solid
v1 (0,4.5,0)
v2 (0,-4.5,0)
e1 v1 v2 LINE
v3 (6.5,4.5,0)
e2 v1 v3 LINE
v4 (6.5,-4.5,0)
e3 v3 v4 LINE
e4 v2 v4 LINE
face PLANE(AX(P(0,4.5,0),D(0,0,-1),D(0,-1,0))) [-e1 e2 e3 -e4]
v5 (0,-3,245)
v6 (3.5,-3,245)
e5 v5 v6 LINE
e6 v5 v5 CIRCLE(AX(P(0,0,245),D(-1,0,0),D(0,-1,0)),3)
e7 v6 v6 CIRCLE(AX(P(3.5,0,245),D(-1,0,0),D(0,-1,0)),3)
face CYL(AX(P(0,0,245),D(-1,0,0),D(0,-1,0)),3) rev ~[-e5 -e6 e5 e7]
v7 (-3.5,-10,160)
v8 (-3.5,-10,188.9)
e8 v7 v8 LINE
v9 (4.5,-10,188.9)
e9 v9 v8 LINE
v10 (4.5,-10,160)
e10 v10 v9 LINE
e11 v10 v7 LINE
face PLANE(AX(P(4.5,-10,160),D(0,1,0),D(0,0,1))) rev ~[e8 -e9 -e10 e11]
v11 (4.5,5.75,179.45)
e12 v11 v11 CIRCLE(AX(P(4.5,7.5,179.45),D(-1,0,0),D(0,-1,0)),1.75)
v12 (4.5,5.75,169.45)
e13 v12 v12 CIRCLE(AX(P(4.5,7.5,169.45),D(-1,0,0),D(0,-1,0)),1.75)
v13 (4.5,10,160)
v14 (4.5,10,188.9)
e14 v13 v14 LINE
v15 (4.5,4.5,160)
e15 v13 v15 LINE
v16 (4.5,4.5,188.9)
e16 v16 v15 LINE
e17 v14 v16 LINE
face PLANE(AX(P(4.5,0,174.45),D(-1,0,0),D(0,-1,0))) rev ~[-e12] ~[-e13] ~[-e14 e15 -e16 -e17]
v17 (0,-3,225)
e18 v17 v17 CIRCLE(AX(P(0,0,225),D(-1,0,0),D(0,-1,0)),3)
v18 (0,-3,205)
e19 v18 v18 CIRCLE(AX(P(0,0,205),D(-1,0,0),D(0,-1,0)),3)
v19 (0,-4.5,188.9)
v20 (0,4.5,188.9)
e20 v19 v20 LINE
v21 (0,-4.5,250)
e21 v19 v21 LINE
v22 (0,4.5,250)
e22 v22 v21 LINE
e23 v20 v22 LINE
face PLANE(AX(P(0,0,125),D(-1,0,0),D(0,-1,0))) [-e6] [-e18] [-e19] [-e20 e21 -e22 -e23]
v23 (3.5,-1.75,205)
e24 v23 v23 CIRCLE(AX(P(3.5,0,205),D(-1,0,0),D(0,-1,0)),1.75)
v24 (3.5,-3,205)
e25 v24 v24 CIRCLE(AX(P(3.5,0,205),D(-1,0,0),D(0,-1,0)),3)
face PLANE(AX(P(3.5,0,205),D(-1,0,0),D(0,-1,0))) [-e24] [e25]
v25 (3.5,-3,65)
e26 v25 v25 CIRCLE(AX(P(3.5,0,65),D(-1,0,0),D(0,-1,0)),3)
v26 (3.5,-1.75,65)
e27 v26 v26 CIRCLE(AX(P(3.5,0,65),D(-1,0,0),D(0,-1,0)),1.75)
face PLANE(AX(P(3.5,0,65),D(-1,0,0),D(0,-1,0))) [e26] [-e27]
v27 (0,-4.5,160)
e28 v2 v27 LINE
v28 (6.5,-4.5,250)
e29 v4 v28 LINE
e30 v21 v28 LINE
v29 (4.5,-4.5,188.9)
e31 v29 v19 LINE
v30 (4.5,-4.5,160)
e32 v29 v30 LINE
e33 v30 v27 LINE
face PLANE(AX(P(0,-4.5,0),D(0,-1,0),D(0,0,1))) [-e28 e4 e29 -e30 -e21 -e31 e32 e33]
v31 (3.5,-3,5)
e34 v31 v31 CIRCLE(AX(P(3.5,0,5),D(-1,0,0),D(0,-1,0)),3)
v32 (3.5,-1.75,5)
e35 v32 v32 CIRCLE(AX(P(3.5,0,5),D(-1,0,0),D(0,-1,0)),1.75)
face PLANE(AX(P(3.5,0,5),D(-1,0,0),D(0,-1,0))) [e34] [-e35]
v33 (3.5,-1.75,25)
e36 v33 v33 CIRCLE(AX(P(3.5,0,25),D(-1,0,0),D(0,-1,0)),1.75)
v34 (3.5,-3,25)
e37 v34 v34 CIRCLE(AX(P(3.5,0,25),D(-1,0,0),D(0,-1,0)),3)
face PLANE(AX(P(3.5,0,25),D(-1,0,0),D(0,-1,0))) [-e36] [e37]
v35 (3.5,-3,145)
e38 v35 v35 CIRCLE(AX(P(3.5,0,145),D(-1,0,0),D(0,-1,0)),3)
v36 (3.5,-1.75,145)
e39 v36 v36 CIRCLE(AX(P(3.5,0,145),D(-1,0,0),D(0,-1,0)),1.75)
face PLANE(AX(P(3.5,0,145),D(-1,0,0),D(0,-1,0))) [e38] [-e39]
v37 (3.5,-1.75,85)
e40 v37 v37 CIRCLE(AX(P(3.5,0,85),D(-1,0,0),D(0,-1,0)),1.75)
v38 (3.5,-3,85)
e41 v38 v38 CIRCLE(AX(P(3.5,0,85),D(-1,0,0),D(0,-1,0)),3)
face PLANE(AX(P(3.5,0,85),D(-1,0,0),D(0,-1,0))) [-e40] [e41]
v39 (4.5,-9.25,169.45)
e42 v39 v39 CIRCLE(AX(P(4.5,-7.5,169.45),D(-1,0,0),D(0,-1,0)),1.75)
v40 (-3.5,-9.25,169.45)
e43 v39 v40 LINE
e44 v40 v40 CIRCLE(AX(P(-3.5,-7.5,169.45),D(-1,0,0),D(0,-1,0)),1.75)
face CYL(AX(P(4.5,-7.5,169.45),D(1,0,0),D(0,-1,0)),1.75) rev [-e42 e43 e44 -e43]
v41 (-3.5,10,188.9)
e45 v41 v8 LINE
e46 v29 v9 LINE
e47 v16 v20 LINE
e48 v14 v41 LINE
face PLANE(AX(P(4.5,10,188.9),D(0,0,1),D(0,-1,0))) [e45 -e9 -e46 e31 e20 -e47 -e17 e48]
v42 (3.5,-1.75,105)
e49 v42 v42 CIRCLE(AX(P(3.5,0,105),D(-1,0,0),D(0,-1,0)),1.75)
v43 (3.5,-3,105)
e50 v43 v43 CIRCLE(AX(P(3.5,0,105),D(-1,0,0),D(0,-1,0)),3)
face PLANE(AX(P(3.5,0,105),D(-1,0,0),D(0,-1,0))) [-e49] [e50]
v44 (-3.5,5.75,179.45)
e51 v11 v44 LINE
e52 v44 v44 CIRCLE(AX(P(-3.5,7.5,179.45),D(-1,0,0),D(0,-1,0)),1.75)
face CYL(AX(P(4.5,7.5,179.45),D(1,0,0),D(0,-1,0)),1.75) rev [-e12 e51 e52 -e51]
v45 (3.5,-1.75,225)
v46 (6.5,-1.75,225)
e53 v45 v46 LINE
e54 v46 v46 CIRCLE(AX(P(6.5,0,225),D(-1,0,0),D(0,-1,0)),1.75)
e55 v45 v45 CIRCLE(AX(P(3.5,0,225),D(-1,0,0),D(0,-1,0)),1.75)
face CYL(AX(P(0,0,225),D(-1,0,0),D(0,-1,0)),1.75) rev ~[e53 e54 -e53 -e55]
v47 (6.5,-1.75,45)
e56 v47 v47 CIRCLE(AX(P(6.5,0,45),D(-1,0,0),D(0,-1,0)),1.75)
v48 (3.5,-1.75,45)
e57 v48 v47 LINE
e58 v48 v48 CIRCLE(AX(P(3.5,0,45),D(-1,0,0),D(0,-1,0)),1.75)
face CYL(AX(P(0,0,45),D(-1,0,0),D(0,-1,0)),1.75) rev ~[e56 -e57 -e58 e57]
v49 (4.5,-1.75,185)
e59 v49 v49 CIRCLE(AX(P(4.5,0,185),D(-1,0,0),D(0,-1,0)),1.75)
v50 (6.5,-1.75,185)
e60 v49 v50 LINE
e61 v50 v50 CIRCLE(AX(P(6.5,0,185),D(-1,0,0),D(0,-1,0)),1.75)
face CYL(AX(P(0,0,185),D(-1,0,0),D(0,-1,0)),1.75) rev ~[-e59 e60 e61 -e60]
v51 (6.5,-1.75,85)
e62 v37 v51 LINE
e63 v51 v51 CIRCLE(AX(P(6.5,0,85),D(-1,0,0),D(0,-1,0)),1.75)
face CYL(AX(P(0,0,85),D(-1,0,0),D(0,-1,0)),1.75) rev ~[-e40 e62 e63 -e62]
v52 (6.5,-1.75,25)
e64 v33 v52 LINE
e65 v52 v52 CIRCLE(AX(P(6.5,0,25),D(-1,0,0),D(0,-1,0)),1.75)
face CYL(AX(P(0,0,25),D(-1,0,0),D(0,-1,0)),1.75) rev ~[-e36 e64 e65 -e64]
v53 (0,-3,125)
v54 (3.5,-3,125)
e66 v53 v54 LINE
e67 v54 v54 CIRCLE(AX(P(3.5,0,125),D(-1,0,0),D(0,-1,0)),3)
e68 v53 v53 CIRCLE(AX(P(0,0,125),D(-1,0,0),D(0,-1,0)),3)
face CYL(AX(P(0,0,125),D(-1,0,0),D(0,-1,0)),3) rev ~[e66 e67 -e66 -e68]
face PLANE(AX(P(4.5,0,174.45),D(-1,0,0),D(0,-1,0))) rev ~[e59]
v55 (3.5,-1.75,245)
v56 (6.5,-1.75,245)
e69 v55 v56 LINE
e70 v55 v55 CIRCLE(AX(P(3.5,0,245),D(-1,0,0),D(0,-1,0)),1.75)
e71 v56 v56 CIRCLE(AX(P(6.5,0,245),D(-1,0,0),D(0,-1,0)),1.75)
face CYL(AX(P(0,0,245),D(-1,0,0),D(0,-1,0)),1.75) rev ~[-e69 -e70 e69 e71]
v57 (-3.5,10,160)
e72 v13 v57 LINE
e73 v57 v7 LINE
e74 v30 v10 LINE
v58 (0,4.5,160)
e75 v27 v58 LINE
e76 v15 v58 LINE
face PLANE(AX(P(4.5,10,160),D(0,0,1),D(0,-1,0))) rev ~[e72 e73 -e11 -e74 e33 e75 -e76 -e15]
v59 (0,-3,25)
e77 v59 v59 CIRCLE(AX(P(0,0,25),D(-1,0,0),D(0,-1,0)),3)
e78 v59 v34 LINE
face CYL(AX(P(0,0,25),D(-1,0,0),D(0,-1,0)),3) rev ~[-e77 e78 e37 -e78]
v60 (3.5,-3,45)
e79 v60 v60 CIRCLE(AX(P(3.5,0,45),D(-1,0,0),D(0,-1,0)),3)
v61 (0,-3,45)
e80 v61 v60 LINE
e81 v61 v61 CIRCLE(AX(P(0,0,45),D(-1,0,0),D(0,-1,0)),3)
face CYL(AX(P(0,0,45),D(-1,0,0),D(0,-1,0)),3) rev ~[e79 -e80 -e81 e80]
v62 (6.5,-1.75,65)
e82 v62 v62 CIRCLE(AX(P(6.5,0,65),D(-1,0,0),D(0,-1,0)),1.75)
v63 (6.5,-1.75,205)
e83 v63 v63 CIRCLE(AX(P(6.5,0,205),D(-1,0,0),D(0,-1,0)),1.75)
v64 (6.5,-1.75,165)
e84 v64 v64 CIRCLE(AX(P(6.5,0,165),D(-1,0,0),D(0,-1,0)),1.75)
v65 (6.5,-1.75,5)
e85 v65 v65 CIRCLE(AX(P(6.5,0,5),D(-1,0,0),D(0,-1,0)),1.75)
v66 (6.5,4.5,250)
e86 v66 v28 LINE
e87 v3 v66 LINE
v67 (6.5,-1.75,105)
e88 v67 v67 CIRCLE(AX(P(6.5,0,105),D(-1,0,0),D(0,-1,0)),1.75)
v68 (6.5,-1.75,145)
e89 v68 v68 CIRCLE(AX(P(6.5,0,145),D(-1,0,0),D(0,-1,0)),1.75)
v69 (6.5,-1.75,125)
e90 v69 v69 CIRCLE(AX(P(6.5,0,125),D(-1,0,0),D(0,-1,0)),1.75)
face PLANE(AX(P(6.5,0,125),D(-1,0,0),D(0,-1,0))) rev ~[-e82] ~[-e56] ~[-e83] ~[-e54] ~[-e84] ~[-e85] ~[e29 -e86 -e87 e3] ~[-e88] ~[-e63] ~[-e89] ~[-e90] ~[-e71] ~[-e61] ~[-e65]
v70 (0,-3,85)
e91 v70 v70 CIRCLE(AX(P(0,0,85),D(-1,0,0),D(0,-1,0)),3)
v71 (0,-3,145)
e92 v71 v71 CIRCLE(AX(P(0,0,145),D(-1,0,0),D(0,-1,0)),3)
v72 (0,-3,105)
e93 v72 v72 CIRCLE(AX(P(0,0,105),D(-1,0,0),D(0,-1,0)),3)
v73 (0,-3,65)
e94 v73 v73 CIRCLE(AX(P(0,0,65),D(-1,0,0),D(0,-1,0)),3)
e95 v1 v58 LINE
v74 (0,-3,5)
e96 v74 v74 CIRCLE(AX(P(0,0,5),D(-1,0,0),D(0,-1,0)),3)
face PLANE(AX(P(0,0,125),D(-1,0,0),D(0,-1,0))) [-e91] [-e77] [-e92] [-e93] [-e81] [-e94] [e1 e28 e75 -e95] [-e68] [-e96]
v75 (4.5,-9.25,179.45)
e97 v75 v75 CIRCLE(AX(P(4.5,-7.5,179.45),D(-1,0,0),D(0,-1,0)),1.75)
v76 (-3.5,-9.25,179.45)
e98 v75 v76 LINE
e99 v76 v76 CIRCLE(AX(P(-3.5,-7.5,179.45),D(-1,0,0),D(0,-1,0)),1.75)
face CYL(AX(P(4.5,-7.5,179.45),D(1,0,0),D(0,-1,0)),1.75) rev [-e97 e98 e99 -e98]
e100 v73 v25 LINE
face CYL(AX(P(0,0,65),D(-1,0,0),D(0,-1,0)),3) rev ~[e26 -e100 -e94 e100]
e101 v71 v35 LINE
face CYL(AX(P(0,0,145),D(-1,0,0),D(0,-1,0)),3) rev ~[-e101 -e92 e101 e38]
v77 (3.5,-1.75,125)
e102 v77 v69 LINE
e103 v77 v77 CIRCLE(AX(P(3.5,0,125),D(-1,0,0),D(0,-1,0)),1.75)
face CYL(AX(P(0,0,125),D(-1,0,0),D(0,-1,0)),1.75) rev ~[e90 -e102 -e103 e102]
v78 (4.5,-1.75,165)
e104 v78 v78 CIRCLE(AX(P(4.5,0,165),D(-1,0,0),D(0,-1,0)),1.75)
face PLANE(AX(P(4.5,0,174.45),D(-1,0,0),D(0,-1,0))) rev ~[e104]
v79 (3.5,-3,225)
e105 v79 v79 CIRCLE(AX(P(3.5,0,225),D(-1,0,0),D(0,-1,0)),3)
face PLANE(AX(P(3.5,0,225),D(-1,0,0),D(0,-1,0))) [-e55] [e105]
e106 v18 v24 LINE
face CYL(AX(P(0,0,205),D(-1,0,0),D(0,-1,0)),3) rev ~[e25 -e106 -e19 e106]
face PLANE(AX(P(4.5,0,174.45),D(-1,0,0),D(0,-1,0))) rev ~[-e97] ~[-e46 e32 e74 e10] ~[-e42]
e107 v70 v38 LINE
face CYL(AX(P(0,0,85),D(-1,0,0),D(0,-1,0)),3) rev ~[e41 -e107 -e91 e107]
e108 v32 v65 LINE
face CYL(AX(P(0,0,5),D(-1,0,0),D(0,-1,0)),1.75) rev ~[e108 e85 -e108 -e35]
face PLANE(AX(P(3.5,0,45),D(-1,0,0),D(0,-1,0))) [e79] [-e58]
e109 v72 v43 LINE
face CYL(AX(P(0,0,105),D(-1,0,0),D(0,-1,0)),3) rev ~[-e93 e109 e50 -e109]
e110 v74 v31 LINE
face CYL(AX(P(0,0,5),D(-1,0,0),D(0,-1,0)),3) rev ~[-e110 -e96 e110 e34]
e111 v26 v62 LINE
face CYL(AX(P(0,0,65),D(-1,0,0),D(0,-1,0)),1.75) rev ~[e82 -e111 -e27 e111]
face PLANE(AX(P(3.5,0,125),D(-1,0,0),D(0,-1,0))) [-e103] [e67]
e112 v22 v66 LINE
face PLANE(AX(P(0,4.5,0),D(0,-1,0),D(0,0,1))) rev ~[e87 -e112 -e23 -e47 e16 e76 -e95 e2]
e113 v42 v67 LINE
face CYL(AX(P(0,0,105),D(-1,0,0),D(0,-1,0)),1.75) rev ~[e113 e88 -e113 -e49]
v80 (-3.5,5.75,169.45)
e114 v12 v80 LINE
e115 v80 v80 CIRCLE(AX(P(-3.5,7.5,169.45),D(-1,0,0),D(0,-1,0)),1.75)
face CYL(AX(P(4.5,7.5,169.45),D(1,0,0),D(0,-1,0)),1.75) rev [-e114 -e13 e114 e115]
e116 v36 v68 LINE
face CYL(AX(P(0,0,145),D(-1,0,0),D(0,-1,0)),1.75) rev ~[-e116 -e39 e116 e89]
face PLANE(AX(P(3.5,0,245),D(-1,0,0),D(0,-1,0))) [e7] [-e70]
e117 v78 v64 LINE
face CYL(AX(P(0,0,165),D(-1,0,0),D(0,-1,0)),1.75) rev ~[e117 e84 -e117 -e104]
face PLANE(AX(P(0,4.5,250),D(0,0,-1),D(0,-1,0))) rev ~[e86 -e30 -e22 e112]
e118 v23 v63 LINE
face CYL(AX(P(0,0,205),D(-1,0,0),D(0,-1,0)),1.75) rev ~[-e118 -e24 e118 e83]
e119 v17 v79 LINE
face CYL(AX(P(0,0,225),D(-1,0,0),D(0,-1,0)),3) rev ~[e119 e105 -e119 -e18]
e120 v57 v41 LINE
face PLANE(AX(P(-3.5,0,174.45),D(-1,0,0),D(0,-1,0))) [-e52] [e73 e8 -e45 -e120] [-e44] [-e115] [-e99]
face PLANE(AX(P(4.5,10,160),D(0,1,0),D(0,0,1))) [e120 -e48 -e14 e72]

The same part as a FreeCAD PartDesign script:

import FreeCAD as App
import Part
import Sketcher
Q = App.Units.Quantity

doc = App.newDocument("Part")
params = doc.addObject("Spreadsheet::Sheet", "Params")
for row, (alias, value) in enumerate([
    ("sketch1_width", "9 mm"),
    ("sketch1_height", "250 mm"),
    ("pad1_length", "6.5 mm"),
    ("sketch2_diameter", "3.5 mm"),
    ("pocket1_length", "6.5 mm"),
    ("linearpattern_pitch", "20 mm"),
    ("sketch3_diameter", "6 mm"),
    ("pocket2_length", "3.5 mm"),
    ("linearpattern2_pitch", "20 mm"),
    ("sketch4_diameter", "3.5 mm"),
    ("sketch4_width", "20 mm"),
    ("sketch4_height", "28.9 mm"),
    ("pad2_length", "8 mm"),
], start=1):
    params.set(f"A{row}", alias)
    params.set(f"B{row}", "=" + value)
    params.setAlias(f"B{row}", alias)

body = doc.addObject("PartDesign::Body", "Body")

# Sketch on XY plane
sketch1 = doc.addObject("Sketcher::SketchObject", "Sketch")
body.addObject(sketch1)
sketch1.AttachmentSupport = (doc.XY_Plane, [""])
sketch1.MapMode = "FlatFace"
sketch1.addGeometry(Part.LineSegment(App.Vector(-4, 250, 0), App.Vector(-4, 0, 0)), False)
sketch1.addGeometry(Part.LineSegment(App.Vector(-4, 0, 0), App.Vector(4, 0, 0)), False)
sketch1.addGeometry(Part.LineSegment(App.Vector(4, 0, 0), App.Vector(4, 250, 0)), False)
sketch1.addGeometry(Part.LineSegment(App.Vector(4, 250, 0), App.Vector(-4, 250, 0)), False)
sketch1.addConstraint(Sketcher.Constraint("Coincident", 0, 2, 1, 1))
sketch1.addConstraint(Sketcher.Constraint("Coincident", 1, 2, 2, 1))
sketch1.addConstraint(Sketcher.Constraint("Coincident", 2, 2, 3, 1))
sketch1.addConstraint(Sketcher.Constraint("Coincident", 3, 2, 0, 1))
sketch1.addConstraint(Sketcher.Constraint("Vertical", 0))
sketch1.addConstraint(Sketcher.Constraint("Horizontal", 1))
sketch1.addConstraint(Sketcher.Constraint("Vertical", 2))
sketch1.addConstraint(Sketcher.Constraint("Horizontal", 3))
sketch1.addConstraint(Sketcher.Constraint("Symmetric", 0, 2, 1, 2, -1, 1))
sketch1.addConstraint(Sketcher.Constraint("DistanceX", 1, 1, 1, 2, Q("9 mm")))
sketch1.addConstraint(Sketcher.Constraint("DistanceY", 0, 2, 0, 1, Q("250 mm")))
sketch1.setExpression("Constraints[9]", "Params.sketch1_width")
sketch1.setExpression("Constraints[10]", "Params.sketch1_height")
pad1 = doc.addObject("PartDesign::Pad", "Pad")
body.addObject(pad1)
pad1.Profile = sketch1
pad1.setExpression("Length", "Params.pad1_length")
pad1.Reversed = True

# Sketch on XY plane
sketch2 = doc.addObject("Sketcher::SketchObject", "Sketch001")
body.addObject(sketch2)
sketch2.AttachmentSupport = (doc.XY_Plane, [""])
sketch2.MapMode = "FlatFace"
sketch2.addGeometry(Part.Circle(App.Vector(0, 5, 0), App.Vector(0, 0, 1), 1.8), False)
sketch2.addConstraint(Sketcher.Constraint("PointOnObject", 0, 3, -2))
sketch2.addConstraint(Sketcher.Constraint("Diameter", 0, Q("3.5 mm")))
sketch2.addConstraint(Sketcher.Constraint("DistanceY", -1, 1, 0, 3, Q("5 mm")))
sketch2.setExpression("Constraints[1]", "Params.sketch2_diameter")
pocket1 = doc.addObject("PartDesign::Pocket", "Pocket")
body.addObject(pocket1)
pocket1.Profile = sketch2
pocket1.setExpression("Length", "Params.pocket1_length")
doc.recompute()

linearpattern = doc.addObject("PartDesign::LinearPattern", "LinearPattern")
body.addObject(linearpattern)
linearpattern.Originals = [pocket1]
linearpattern.Direction = (doc.Y_Axis, [""])
linearpattern.Mode = "offset"
linearpattern.setExpression("Offset", "Params.linearpattern_pitch")
linearpattern.Occurrences = 13
body.Tip = linearpattern

# Sketch on XY plane
sketch3 = doc.addObject("Sketcher::SketchObject", "Sketch002")
body.addObject(sketch3)
sketch3.AttachmentSupport = (doc.XY_Plane, [""])
sketch3.MapMode = "FlatFace"
sketch3.addGeometry(Part.Circle(App.Vector(0, 5, 0), App.Vector(0, 0, 1), 3), False)
sketch3.addConstraint(Sketcher.Constraint("PointOnObject", 0, 3, -2))
sketch3.addConstraint(Sketcher.Constraint("Diameter", 0, Q("6 mm")))
sketch3.addConstraint(Sketcher.Constraint("DistanceY", -1, 1, 0, 3, Q("5 mm")))
sketch3.setExpression("Constraints[1]", "Params.sketch3_diameter")
pocket2 = doc.addObject("PartDesign::Pocket", "Pocket001")
body.addObject(pocket2)
pocket2.Profile = sketch3
pocket2.setExpression("Length", "Params.pocket2_length")
doc.recompute()

linearpattern2 = doc.addObject("PartDesign::LinearPattern", "LinearPattern001")
body.addObject(linearpattern2)
linearpattern2.Originals = [pocket2]
linearpattern2.Direction = (doc.Y_Axis, [""])
linearpattern2.Mode = "offset"
linearpattern2.setExpression("Offset", "Params.linearpattern2_pitch")
linearpattern2.Occurrences = 13
body.Tip = linearpattern2

# Sketch on XY plane
sketch4 = doc.addObject("Sketcher::SketchObject", "Sketch003")
body.addObject(sketch4)
sketch4.AttachmentSupport = (doc.XY_Plane, [""])
sketch4.MapMode = "FlatFace"
sketch4.AttachmentOffset = App.Placement(App.Vector(0, 0, -4.5), App.Rotation())
sketch4.addGeometry(Part.LineSegment(App.Vector(-10, 188.9, 0), App.Vector(-10, 160, 0)), False)
sketch4.addGeometry(Part.LineSegment(App.Vector(-10, 160, 0), App.Vector(10, 160, 0)), False)
sketch4.addGeometry(Part.LineSegment(App.Vector(10, 160, 0), App.Vector(10, 188.9, 0)), False)
sketch4.addGeometry(Part.LineSegment(App.Vector(10, 188.9, 0), App.Vector(-10, 188.9, 0)), False)
sketch4.addGeometry(Part.Circle(App.Vector(-7.5, 169.4, 0), App.Vector(0, 0, 1), 1.8), False)
sketch4.addGeometry(Part.Circle(App.Vector(7.5, 169.4, 0), App.Vector(0, 0, 1), 1.8), False)
sketch4.addGeometry(Part.Circle(App.Vector(-7.5, 179.4, 0), App.Vector(0, 0, 1), 1.8), False)
sketch4.addGeometry(Part.Circle(App.Vector(7.5, 179.4, 0), App.Vector(0, 0, 1), 1.8), False)
sketch4.addConstraint(Sketcher.Constraint("Coincident", 0, 2, 1, 1))
sketch4.addConstraint(Sketcher.Constraint("Coincident", 1, 2, 2, 1))
sketch4.addConstraint(Sketcher.Constraint("Coincident", 2, 2, 3, 1))
sketch4.addConstraint(Sketcher.Constraint("Coincident", 3, 2, 0, 1))
sketch4.addConstraint(Sketcher.Constraint("Vertical", 0))
sketch4.addConstraint(Sketcher.Constraint("Horizontal", 1))
sketch4.addConstraint(Sketcher.Constraint("Vertical", 2))
sketch4.addConstraint(Sketcher.Constraint("Horizontal", 3))
sketch4.addConstraint(Sketcher.Constraint("Equal", 4, 5))
sketch4.addConstraint(Sketcher.Constraint("Equal", 5, 6))
sketch4.addConstraint(Sketcher.Constraint("Equal", 6, 7))
sketch4.addConstraint(Sketcher.Constraint("Symmetric", 4, 3, 5, 3, -2))
sketch4.addConstraint(Sketcher.Constraint("Symmetric", 6, 3, 7, 3, -2))
sketch4.addConstraint(Sketcher.Constraint("Vertical", 4, 3, 6, 3))
sketch4.addConstraint(Sketcher.Constraint("Diameter", 4, Q("3.5 mm")))
sketch4.addConstraint(Sketcher.Constraint("DistanceX", 1, 1, 1, 2, Q("20 mm")))
sketch4.addConstraint(Sketcher.Constraint("DistanceY", 0, 2, 0, 1, Q("28.9 mm")))
sketch4.addConstraint(Sketcher.Constraint("DistanceX", 0, 2, -1, 1, Q("10 mm")))
sketch4.addConstraint(Sketcher.Constraint("DistanceY", -1, 1, 0, 2, Q("160 mm")))
sketch4.addConstraint(Sketcher.Constraint("DistanceX", 4, 3, 5, 3, Q("15 mm")))
sketch4.addConstraint(Sketcher.Constraint("DistanceY", 4, 3, 6, 3, Q("10 mm")))
sketch4.addConstraint(Sketcher.Constraint("DistanceY", -1, 1, 4, 3, Q("169.45 mm")))
sketch4.setExpression("Constraints[14]", "Params.sketch4_diameter")
sketch4.setExpression("Constraints[15]", "Params.sketch4_width")
sketch4.setExpression("Constraints[16]", "Params.sketch4_height")
pad2 = doc.addObject("PartDesign::Pad", "Pad001")
body.addObject(pad2)
pad2.Profile = sketch4
pad2.setExpression("Length", "Params.pad2_length")
body2 = doc.addObject("PartDesign::Body", "Body001")
doc.recompute()

body.Placement = App.Placement(App.Vector(0, 0, 0), App.Rotation(App.Vector(1, 0, 0), 90))
boolean = doc.addObject("PartDesign::Boolean", "Boolean")
body2.addObject(boolean)
boolean.Type = "Fuse"
boolean.addObjects([body])
body3 = doc.addObject("PartDesign::Body", "Body002")
doc.recompute()

body2.Placement = App.Placement(App.Vector(0, 0, 0), App.Rotation(App.Vector(0, 0, 1), 270))
boolean2 = doc.addObject("PartDesign::Boolean", "Boolean001")
body3.addObject(boolean2)
boolean2.Type = "Fuse"
boolean2.addObjects([body2])

doc.recompute()
